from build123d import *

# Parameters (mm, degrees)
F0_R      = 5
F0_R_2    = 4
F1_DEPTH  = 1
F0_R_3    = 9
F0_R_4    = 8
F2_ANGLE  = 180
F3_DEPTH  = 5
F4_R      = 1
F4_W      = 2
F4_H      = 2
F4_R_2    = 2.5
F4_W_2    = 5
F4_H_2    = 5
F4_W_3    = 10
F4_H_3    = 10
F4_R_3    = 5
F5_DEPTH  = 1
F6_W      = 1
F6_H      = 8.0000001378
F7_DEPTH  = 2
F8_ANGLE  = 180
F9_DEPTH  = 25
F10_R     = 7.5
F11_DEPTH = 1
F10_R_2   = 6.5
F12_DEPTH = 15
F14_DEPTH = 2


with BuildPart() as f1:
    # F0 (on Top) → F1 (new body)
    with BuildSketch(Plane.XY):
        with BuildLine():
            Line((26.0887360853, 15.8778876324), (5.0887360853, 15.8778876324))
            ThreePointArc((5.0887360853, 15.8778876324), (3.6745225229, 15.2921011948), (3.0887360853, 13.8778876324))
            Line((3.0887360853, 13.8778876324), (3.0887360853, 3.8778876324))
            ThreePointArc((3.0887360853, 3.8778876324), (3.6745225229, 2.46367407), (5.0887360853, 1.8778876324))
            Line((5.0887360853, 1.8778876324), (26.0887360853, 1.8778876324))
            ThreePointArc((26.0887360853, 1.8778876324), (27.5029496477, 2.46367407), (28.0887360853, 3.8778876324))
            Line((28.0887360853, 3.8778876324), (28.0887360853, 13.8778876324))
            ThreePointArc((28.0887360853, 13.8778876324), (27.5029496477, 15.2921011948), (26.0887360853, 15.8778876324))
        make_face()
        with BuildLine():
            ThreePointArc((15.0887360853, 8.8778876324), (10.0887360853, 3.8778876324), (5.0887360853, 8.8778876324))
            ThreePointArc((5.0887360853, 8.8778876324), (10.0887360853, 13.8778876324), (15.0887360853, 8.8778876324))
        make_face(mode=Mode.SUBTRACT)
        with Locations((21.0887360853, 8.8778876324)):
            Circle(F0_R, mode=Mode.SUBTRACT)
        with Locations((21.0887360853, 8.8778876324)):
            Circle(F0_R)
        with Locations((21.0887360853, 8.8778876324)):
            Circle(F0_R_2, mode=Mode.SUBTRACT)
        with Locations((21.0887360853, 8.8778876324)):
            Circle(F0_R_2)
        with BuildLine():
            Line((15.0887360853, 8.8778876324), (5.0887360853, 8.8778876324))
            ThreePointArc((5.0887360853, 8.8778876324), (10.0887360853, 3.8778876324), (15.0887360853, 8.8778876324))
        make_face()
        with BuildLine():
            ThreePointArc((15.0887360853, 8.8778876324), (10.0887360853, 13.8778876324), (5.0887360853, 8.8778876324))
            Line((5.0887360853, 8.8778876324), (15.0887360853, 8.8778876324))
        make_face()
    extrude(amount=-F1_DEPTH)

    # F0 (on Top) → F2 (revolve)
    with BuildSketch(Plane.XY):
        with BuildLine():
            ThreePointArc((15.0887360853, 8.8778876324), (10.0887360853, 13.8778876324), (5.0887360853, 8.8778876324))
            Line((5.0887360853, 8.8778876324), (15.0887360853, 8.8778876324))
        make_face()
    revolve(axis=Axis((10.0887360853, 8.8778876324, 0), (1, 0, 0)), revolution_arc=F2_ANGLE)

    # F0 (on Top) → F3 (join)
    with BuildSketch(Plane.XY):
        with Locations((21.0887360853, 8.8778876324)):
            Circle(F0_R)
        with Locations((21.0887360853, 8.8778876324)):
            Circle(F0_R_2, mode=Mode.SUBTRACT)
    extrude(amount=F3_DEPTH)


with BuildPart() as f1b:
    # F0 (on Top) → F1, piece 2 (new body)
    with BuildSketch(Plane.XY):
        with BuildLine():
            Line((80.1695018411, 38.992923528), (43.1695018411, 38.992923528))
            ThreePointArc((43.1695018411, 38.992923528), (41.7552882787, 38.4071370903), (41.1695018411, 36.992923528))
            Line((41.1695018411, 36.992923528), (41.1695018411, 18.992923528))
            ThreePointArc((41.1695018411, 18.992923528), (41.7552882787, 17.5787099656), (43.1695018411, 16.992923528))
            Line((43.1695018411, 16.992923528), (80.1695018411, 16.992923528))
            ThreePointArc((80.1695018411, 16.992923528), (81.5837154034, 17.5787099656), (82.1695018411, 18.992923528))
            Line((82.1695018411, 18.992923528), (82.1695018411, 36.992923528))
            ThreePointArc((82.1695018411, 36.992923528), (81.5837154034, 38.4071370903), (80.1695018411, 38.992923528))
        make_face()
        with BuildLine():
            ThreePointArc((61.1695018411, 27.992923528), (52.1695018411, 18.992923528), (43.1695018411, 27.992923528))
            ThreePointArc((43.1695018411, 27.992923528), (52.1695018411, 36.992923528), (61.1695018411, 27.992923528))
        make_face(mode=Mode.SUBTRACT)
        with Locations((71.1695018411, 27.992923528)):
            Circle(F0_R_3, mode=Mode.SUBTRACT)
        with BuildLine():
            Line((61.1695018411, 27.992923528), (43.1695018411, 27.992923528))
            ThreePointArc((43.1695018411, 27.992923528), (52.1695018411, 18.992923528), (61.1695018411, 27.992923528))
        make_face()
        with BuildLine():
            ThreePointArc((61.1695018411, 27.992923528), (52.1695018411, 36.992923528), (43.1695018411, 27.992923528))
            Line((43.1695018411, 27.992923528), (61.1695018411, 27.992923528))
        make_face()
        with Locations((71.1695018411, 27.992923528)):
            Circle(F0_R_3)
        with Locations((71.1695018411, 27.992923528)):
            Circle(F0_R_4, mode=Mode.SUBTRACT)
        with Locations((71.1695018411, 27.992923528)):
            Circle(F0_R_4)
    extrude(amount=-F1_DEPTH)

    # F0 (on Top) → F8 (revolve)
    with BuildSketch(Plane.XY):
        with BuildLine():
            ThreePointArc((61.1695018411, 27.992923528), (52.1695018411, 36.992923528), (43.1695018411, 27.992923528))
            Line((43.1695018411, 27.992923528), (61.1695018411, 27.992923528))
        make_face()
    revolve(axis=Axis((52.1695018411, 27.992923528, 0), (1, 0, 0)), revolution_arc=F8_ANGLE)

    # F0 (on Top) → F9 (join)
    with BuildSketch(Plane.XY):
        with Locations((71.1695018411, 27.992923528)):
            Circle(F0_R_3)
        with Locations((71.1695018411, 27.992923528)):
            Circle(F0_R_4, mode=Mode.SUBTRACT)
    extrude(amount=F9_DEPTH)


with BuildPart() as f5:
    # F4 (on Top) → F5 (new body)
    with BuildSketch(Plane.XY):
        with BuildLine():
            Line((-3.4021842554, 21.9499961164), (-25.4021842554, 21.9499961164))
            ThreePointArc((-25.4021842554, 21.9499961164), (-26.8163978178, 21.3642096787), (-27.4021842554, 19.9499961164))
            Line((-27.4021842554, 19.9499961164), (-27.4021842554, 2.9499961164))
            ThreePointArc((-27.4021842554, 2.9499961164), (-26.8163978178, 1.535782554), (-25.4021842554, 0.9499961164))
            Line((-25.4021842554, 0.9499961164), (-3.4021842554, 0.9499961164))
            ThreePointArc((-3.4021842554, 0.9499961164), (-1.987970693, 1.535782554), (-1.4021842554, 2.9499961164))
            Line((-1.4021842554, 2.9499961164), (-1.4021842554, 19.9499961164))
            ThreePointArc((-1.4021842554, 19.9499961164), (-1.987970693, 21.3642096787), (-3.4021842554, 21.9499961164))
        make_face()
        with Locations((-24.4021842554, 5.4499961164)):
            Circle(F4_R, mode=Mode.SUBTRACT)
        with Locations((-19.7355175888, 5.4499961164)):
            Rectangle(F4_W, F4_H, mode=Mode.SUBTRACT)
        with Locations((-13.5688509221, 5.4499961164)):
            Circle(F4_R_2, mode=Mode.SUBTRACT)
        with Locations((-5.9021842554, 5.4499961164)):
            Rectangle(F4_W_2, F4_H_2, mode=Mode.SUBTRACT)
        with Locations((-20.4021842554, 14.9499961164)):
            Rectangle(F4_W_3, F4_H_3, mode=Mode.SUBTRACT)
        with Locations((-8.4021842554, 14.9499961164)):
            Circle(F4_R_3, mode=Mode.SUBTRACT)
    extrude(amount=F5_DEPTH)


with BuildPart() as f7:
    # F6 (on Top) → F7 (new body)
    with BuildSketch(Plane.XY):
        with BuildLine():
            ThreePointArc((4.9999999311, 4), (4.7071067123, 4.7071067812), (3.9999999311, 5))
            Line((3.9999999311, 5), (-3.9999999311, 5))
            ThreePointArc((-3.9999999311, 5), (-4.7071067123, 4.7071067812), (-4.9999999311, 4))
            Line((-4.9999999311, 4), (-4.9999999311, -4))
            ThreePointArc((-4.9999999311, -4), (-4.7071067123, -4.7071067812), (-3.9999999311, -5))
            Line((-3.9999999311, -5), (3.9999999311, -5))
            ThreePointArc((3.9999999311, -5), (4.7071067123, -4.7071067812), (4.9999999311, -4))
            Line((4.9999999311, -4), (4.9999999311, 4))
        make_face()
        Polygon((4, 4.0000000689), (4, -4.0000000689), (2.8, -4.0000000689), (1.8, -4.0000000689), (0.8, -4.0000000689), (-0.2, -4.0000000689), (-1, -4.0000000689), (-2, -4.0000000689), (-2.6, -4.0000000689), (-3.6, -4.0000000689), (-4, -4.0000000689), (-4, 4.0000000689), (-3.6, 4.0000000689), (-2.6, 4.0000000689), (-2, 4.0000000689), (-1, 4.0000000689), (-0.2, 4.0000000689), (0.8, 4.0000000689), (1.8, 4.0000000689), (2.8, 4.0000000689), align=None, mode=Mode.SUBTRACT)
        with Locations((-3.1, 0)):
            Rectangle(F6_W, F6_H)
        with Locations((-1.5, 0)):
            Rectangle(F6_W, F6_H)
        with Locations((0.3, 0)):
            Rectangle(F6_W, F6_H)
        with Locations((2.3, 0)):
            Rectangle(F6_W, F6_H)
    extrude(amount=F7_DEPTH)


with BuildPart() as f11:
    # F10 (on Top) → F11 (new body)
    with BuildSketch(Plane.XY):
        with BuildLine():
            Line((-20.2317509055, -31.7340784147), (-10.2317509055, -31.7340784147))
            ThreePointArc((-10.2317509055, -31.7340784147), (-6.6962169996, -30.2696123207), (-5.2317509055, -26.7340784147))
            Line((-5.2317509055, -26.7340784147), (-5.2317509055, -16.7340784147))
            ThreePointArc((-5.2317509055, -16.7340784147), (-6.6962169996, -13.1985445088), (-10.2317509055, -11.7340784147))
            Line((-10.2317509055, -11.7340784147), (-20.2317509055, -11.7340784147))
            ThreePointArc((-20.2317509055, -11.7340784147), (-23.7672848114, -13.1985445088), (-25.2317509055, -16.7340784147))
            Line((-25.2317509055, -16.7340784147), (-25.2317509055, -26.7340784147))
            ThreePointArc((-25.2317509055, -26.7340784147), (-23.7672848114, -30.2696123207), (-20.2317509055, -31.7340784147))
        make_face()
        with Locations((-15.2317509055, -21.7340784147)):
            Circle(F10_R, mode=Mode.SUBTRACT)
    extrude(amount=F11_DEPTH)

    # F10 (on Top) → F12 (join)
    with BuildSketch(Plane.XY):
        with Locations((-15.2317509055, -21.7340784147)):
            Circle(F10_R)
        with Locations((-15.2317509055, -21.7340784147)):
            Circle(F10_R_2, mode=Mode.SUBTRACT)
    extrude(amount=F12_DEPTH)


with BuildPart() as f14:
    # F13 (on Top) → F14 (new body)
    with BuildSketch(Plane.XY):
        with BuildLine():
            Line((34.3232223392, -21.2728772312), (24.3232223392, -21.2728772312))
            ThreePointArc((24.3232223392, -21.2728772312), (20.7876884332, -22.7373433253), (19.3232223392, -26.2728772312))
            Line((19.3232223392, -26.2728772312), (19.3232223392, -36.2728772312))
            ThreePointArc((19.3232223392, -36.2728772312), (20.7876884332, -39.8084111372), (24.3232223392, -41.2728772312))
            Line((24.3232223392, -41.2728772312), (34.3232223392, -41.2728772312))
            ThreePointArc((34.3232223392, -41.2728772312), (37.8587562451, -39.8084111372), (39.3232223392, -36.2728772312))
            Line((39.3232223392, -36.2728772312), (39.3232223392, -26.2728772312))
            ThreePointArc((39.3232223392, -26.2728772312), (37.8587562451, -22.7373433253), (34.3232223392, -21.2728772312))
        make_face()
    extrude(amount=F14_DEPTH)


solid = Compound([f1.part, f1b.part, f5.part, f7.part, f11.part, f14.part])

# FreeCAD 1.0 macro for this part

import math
import FreeCAD as App
import Part
import Sketcher

doc = App.newDocument("Part")
body = doc.addObject("PartDesign::Body", "Body")

# Sketch on XY plane
sketch1 = body.newObject("Sketcher::SketchObject", "Sketch")
sketch1.AttachmentSupport = (doc.getObject("XY_Plane"), [""])
sketch1.MapMode = "FlatFace"
sketch1.addGeometry(Part.LineSegment(App.Vector(26.1, 15.9, 0), App.Vector(5.1, 15.9, 0)), False)
sketch1.addGeometry(Part.ArcOfCircle(Part.Circle(App.Vector(5.1, 13.9, 0), App.Vector(0, 0, 1), 2), math.radians(90), math.radians(180)), False)
sketch1.addGeometry(Part.LineSegment(App.Vector(3.1, 13.9, 0), App.Vector(3.1, 3.9, 0)), False)
sketch1.addGeometry(Part.ArcOfCircle(Part.Circle(App.Vector(5.1, 3.9, 0), App.Vector(0, 0, 1), 2), math.radians(180), math.radians(270)), False)
sketch1.addGeometry(Part.LineSegment(App.Vector(5.1, 1.9, 0), App.Vector(26.1, 1.9, 0)), False)
sketch1.addGeometry(Part.ArcOfCircle(Part.Circle(App.Vector(26.1, 3.9, 0), App.Vector(0, 0, 1), 2), math.radians(-90), math.radians(0)), False)
sketch1.addGeometry(Part.LineSegment(App.Vector(28.1, 3.9, 0), App.Vector(28.1, 13.9, 0)), False)
sketch1.addGeometry(Part.ArcOfCircle(Part.Circle(App.Vector(26.1, 13.9, 0), App.Vector(0, 0, 1), 2), math.radians(0), math.radians(90)), False)
sketch1.addConstraint(Sketcher.Constraint("Tangent", 0, 2, 1, 1))
sketch1.addConstraint(Sketcher.Constraint("Tangent", 1, 2, 2, 1))
sketch1.addConstraint(Sketcher.Constraint("Tangent", 2, 2, 3, 1))
sketch1.addConstraint(Sketcher.Constraint("Tangent", 3, 2, 4, 1))
sketch1.addConstraint(Sketcher.Constraint("Tangent", 4, 2, 5, 1))
sketch1.addConstraint(Sketcher.Constraint("Tangent", 5, 2, 6, 1))
sketch1.addConstraint(Sketcher.Constraint("Tangent", 6, 2, 7, 1))
sketch1.addConstraint(Sketcher.Constraint("Tangent", 7, 2, 0, 1))
sketch1.addConstraint(Sketcher.Constraint("Horizontal", 0))
sketch1.addConstraint(Sketcher.Constraint("Vertical", 2))
sketch1.addConstraint(Sketcher.Constraint("Horizontal", 4))
sketch1.addConstraint(Sketcher.Constraint("Vertical", 6))
sketch1.addConstraint(Sketcher.Constraint("Equal", 1, 3))
sketch1.addConstraint(Sketcher.Constraint("Equal", 3, 5))
sketch1.addConstraint(Sketcher.Constraint("Equal", 5, 7))
sketch1.addConstraint(Sketcher.Constraint("Radius", 1, 2.0))
sketch1.addConstraint(Sketcher.Constraint("DistanceX", 0, 2, 0, 1, 21.0))
sketch1.addConstraint(Sketcher.Constraint("DistanceY", 2, 2, 2, 1, 10.0))
sketch1.addConstraint(Sketcher.Constraint("DistanceX", -1, 1, 1, 3, 5.088736))
sketch1.addConstraint(Sketcher.Constraint("DistanceY", -1, 1, 1, 3, 13.877888))
pad1 = body.newObject("PartDesign::Pad", "Pad")
pad1.Profile = sketch1
pad1.Length = 1
pad1.Reversed = True

# Sketch on XY plane
sketch2 = body.newObject("Sketcher::SketchObject", "Sketch001")
sketch2.AttachmentSupport = (doc.getObject("XY_Plane"), [""])
sketch2.MapMode = "FlatFace"
sketch2.addGeometry(Part.ArcOfCircle(Part.Circle(App.Vector(10, 9, 0), App.Vector(0, 0, 1), 5), math.radians(0), math.radians(180)), False)
sketch2.addGeometry(Part.LineSegment(App.Vector(5, 9, 0), App.Vector(15, 9, 0)), False)
sketch2.addGeometry(Part.LineSegment(App.Vector(5, 9, 0), App.Vector(15, 9, 0)), True)  # axis
sketch2.addConstraint(Sketcher.Constraint("Coincident", 0, 1, 1, 2))
sketch2.addConstraint(Sketcher.Constraint("Coincident", 1, 1, 0, 2))
sketch2.addConstraint(Sketcher.Constraint("Horizontal", 1))
sketch2.addConstraint(Sketcher.Constraint("Horizontal", 2))
sketch2.addConstraint(Sketcher.Constraint("Coincident", 2, 1, 1, 1))
sketch2.addConstraint(Sketcher.Constraint("Equal", 1, 2))
sketch2.addConstraint(Sketcher.Constraint("Radius", 0, 5.0))
sketch2.addConstraint(Sketcher.Constraint("DistanceX", -1, 1, 0, 3, 10.088736))
sketch2.addConstraint(Sketcher.Constraint("DistanceY", -1, 1, 0, 3, 8.877888))
sketch2.addConstraint(Sketcher.Constraint("DistanceY", -1, 1, 0, 1, 8.877888))
revolution = body.newObject("PartDesign::Revolution", "Revolution")
revolution.Profile = sketch2
revolution.ReferenceAxis = (sketch2, ["Axis0"])
revolution.Angle = 180

# Sketch on XY plane
sketch3 = body.newObject("Sketcher::SketchObject", "Sketch002")
sketch3.AttachmentSupport = (doc.getObject("XY_Plane"), [""])
sketch3.MapMode = "FlatFace"
sketch3.addGeometry(Part.Circle(App.Vector(21.1, 8.9, 0), App.Vector(0, 0, 1), 5), False)
sketch3.addGeometry(Part.Circle(App.Vector(21.1, 8.9, 0), App.Vector(0, 0, 1), 4), False)
sketch3.addConstraint(Sketcher.Constraint("Coincident", 1, 3, 0, 3))
sketch3.addConstraint(Sketcher.Constraint("Diameter", 0, 10.0))
sketch3.addConstraint(Sketcher.Constraint("Diameter", 1, 8.0))
sketch3.addConstraint(Sketcher.Constraint("DistanceX", -1, 1, 0, 3, 21.088736))
sketch3.addConstraint(Sketcher.Constraint("DistanceY", -1, 1, 0, 3, 8.877888))
pad2 = body.newObject("PartDesign::Pad", "Pad001")
pad2.Profile = sketch3
pad2.Length = 5
body2 = doc.addObject("PartDesign::Body", "Body001")

# Sketch on XY plane
sketch4 = body2.newObject("Sketcher::SketchObject", "Sketch003")
sketch4.AttachmentSupport = (doc.getObject("XY_Plane001"), [""])
sketch4.MapMode = "FlatFace"
sketch4.addGeometry(Part.LineSegment(App.Vector(80.2, 39, 0), App.Vector(43.2, 39, 0)), False)
sketch4.addGeometry(Part.ArcOfCircle(Part.Circle(App.Vector(43.2, 37, 0), App.Vector(0, 0, 1), 2), math.radians(90), math.radians(180)), False)
sketch4.addGeometry(Part.LineSegment(App.Vector(41.2, 37, 0), App.Vector(41.2, 19, 0)), False)
sketch4.addGeometry(Part.ArcOfCircle(Part.Circle(App.Vector(43.2, 19, 0), App.Vector(0, 0, 1), 2), math.radians(180), math.radians(270)), False)
sketch4.addGeometry(Part.LineSegment(App.Vector(43.2, 17, 0), App.Vector(80.2, 17, 0)), False)
sketch4.addGeometry(Part.ArcOfCircle(Part.Circle(App.Vector(80.2, 19, 0), App.Vector(0, 0, 1), 2), math.radians(-90), math.radians(0)), False)
sketch4.addGeometry(Part.LineSegment(App.Vector(82.2, 19, 0), App.Vector(82.2, 37, 0)), False)
sketch4.addGeometry(Part.ArcOfCircle(Part.Circle(App.Vector(80.2, 37, 0), App.Vector(0, 0, 1), 2), math.radians(0), math.radians(90)), False)
sketch4.addConstraint(Sketcher.Constraint("Tangent", 0, 2, 1, 1))
sketch4.addConstraint(Sketcher.Constraint("Tangent", 1, 2, 2, 1))
sketch4.addConstraint(Sketcher.Constraint("Tangent", 2, 2, 3, 1))
sketch4.addConstraint(Sketcher.Constraint("Tangent", 3, 2, 4, 1))
sketch4.addConstraint(Sketcher.Constraint("Tangent", 4, 2, 5, 1))
sketch4.addConstraint(Sketcher.Constraint("Tangent", 5, 2, 6, 1))
sketch4.addConstraint(Sketcher.Constraint("Tangent", 6, 2, 7, 1))
sketch4.addConstraint(Sketcher.Constraint("Tangent", 7, 2, 0, 1))
sketch4.addConstraint(Sketcher.Constraint("Horizontal", 0))
sketch4.addConstraint(Sketcher.Constraint("Vertical", 2))
sketch4.addConstraint(Sketcher.Constraint("Horizontal", 4))
sketch4.addConstraint(Sketcher.Constraint("Vertical", 6))
sketch4.addConstraint(Sketcher.Constraint("Equal", 1, 3))
sketch4.addConstraint(Sketcher.Constraint("Equal", 3, 5))
sketch4.addConstraint(Sketcher.Constraint("Equal", 5, 7))
sketch4.addConstraint(Sketcher.Constraint("Radius", 1, 2.0))
sketch4.addConstraint(Sketcher.Constraint("DistanceX", 0, 2, 0, 1, 37.0))
sketch4.addConstraint(Sketcher.Constraint("DistanceY", 2, 2, 2, 1, 18.0))
sketch4.addConstraint(Sketcher.Constraint("DistanceX", -1, 1, 1, 3, 43.169502))
sketch4.addConstraint(Sketcher.Constraint("DistanceY", -1, 1, 1, 3, 36.992924))
pad3 = body2.newObject("PartDesign::Pad", "Pad002")
pad3.Profile = sketch4
pad3.Length = 1
pad3.Reversed = True

# Sketch on XY plane
sketch5 = body2.newObject("Sketcher::SketchObject", "Sketch004")
sketch5.AttachmentSupport = (doc.getObject("XY_Plane001"), [""])
sketch5.MapMode = "FlatFace"
sketch5.addGeometry(Part.ArcOfCircle(Part.Circle(App.Vector(52, 28, 0), App.Vector(0, 0, 1), 9), math.radians(0), math.radians(180)), False)
sketch5.addGeometry(Part.LineSegment(App.Vector(43, 28, 0), App.Vector(61, 28, 0)), False)
sketch5.addGeometry(Part.LineSegment(App.Vector(43, 28, 0), App.Vector(61, 28, 0)), True)  # axis
sketch5.addConstraint(Sketcher.Constraint("Coincident", 0, 1, 1, 2))
sketch5.addConstraint(Sketcher.Constraint("Coincident", 1, 1, 0, 2))
sketch5.addConstraint(Sketcher.Constraint("Horizontal", 1))
sketch5.addConstraint(Sketcher.Constraint("Horizontal", 2))
sketch5.addConstraint(Sketcher.Constraint("Coincident", 2, 1, 1, 1))
sketch5.addConstraint(Sketcher.Constraint("Equal", 1, 2))
sketch5.addConstraint(Sketcher.Constraint("Radius", 0, 9.0))
sketch5.addConstraint(Sketcher.Constraint("DistanceX", -1, 1, 0, 3, 52.169502))
sketch5.addConstraint(Sketcher.Constraint("DistanceY", -1, 1, 0, 3, 27.992924))
sketch5.addConstraint(Sketcher.Constraint("DistanceY", -1, 1, 0, 1, 27.992924))
revolution2 = body2.newObject("PartDesign::Revolution", "Revolution001")
revolution2.Profile = sketch5
revolution2.ReferenceAxis = (sketch5, ["Axis0"])
revolution2.Angle = 180

# Sketch on XY plane
sketch6 = body2.newObject("Sketcher::SketchObject", "Sketch005")
sketch6.AttachmentSupport = (doc.getObject("XY_Plane001"), [""])
sketch6.MapMode = "FlatFace"
sketch6.addGeometry(Part.Circle(App.Vector(71, 28, 0), App.Vector(0, 0, 1), 9), False)
sketch6.addGeometry(Part.Circle(App.Vector(71, 28, 0), App.Vector(0, 0, 1), 8), False)
sketch6.addConstraint(Sketcher.Constraint("Coincident", 1, 3, 0, 3))
sketch6.addConstraint(Sketcher.Constraint("Diameter", 0, 18.0))
sketch6.addConstraint(Sketcher.Constraint("Diameter", 1, 16.0))
sketch6.addConstraint(Sketcher.Constraint("DistanceX", -1, 1, 0, 3, 71.169502))
sketch6.addConstraint(Sketcher.Constraint("DistanceY", -1, 1, 0, 3, 27.992924))
pad4 = body2.newObject("PartDesign::Pad", "Pad003")
pad4.Profile = sketch6
pad4.Length = 25
body3 = doc.addObject("PartDesign::Body", "Body002")

# Sketch on XY plane
sketch7 = body3.newObject("Sketcher::SketchObject", "Sketch006")
sketch7.AttachmentSupport = (doc.getObject("XY_Plane002"), [""])
sketch7.MapMode = "FlatFace"
sketch7.addGeometry(Part.LineSegment(App.Vector(-3.4, 21.9, 0), App.Vector(-25.4, 21.9, 0)), False)
sketch7.addGeometry(Part.ArcOfCircle(Part.Circle(App.Vector(-25.4, 19.9, 0), App.Vector(0, 0, 1), 2), math.radians(90), math.radians(180)), False)
sketch7.addGeometry(Part.LineSegment(App.Vector(-27.4, 19.9, 0), App.Vector(-27.4, 2.9, 0)), False)
sketch7.addGeometry(Part.ArcOfCircle(Part.Circle(App.Vector(-25.4, 2.9, 0), App.Vector(0, 0, 1), 2), math.radians(180), math.radians(270)), False)
sketch7.addGeometry(Part.LineSegment(App.Vector(-25.4, 0.9, 0), App.Vector(-3.4, 0.9, 0)), False)
sketch7.addGeometry(Part.ArcOfCircle(Part.Circle(App.Vector(-3.4, 2.9, 0), App.Vector(0, 0, 1), 2), math.radians(-90), math.radians(0)), False)
sketch7.addGeometry(Part.LineSegment(App.Vector(-1.4, 2.9, 0), App.Vector(-1.4, 19.9, 0)), False)
sketch7.addGeometry(Part.ArcOfCircle(Part.Circle(App.Vector(-3.4, 19.9, 0), App.Vector(0, 0, 1), 2), math.radians(0), math.radians(90)), False)
sketch7.addGeometry(Part.Circle(App.Vector(-24.4, 5.4, 0), App.Vector(0, 0, 1), 1), False)
sketch7.addGeometry(Part.LineSegment(App.Vector(-18.7, 4.4, 0), App.Vector(-20.7, 4.4, 0)), False)
sketch7.addGeometry(Part.LineSegment(App.Vector(-20.7, 4.4, 0), App.Vector(-20.7, 6.4, 0)), False)
sketch7.addGeometry(Part.LineSegment(App.Vector(-20.7, 6.4, 0), App.Vector(-18.7, 6.4, 0)), False)
sketch7.addGeometry(Part.LineSegment(App.Vector(-18.7, 6.4, 0), App.Vector(-18.7, 4.4, 0)), False)
sketch7.addGeometry(Part.Circle(App.Vector(-13.6, 5.4, 0), App.Vector(0, 0, 1), 2.5), False)
sketch7.addGeometry(Part.LineSegment(App.Vector(-3.4, 2.9, 0), App.Vector(-8.4, 2.9, 0)), False)
sketch7.addGeometry(Part.LineSegment(App.Vector(-8.4, 2.9, 0), App.Vector(-8.4, 7.9, 0)), False)
sketch7.addGeometry(Part.LineSegment(App.Vector(-8.4, 7.9, 0), App.Vector(-3.4, 7.9, 0)), False)
sketch7.addGeometry(Part.LineSegment(App.Vector(-3.4, 7.9, 0), App.Vector(-3.4, 2.9, 0)), False)
sketch7.addGeometry(Part.LineSegment(App.Vector(-15.4, 9.9, 0), App.Vector(-25.4, 9.9, 0)), False)
sketch7.addGeometry(Part.LineSegment(App.Vector(-25.4, 9.9, 0), App.Vector(-25.4, 19.9, 0)), False)
sketch7.addGeometry(Part.LineSegment(App.Vector(-25.4, 19.9, 0), App.Vector(-15.4, 19.9, 0)), False)
sketch7.addGeometry(Part.LineSegment(App.Vector(-15.4, 19.9, 0), App.Vector(-15.4, 9.9, 0)), False)
sketch7.addGeometry(Part.Circle(App.Vector(-8.4, 14.9, 0), App.Vector(0, 0, 1), 5), False)
sketch7.addConstraint(Sketcher.Constraint("Tangent", 0, 2, 1, 1))
sketch7.addConstraint(Sketcher.Constraint("Tangent", 1, 2, 2, 1))
sketch7.addConstraint(Sketcher.Constraint("Tangent", 2, 2, 3, 1))
sketch7.addConstraint(Sketcher.Constraint("Tangent", 3, 2, 4, 1))
sketch7.addConstraint(Sketcher.Constraint("Tangent", 4, 2, 5, 1))
sketch7.addConstraint(Sketcher.Constraint("Tangent", 5, 2, 6, 1))
sketch7.addConstraint(Sketcher.Constraint("Tangent", 6, 2, 7, 1))
sketch7.addConstraint(Sketcher.Constraint("Tangent", 7, 2, 0, 1))
sketch7.addConstraint(Sketcher.Constraint("Coincident", 9, 2, 10, 1))
sketch7.addConstraint(Sketcher.Constraint("Coincident", 10, 2, 11, 1))
sketch7.addConstraint(Sketcher.Constraint("Coincident", 11, 2, 12, 1))
sketch7.addConstraint(Sketcher.Constraint("Coincident", 12, 2, 9, 1))
sketch7.addConstraint(Sketcher.Constraint("Coincident", 14, 2, 15, 1))
sketch7.addConstraint(Sketcher.Constraint("Coincident", 15, 2, 16, 1))
sketch7.addConstraint(Sketcher.Constraint("Coincident", 16, 2, 17, 1))
sketch7.addConstraint(Sketcher.Constraint("Coincident", 17, 2, 14, 1))
sketch7.addConstraint(Sketcher.Constraint("Coincident", 18, 2, 19, 1))
sketch7.addConstraint(Sketcher.Constraint("Coincident", 19, 2, 20, 1))
sketch7.addConstraint(Sketcher.Constraint("Coincident", 20, 2, 21, 1))
sketch7.addConstraint(Sketcher.Constraint("Coincident", 21, 2, 18, 1))
sketch7.addConstraint(Sketcher.Constraint("Horizontal", 0))
sketch7.addConstraint(Sketcher.Constraint("Vertical", 2))
sketch7.addConstraint(Sketcher.Constraint("Horizontal", 4))
sketch7.addConstraint(Sketcher.Constraint("Vertical", 6))
sketch7.addConstraint(Sketcher.Constraint("Horizontal", 9))
sketch7.addConstraint(Sketcher.Constraint("Vertical", 10))
sketch7.addConstraint(Sketcher.Constraint("Horizontal", 11))
sketch7.addConstraint(Sketcher.Constraint("Vertical", 12))
sketch7.addConstraint(Sketcher.Constraint("Horizontal", 14))
sketch7.addConstraint(Sketcher.Constraint("Vertical", 15))
sketch7.addConstraint(Sketcher.Constraint("Horizontal", 16))
sketch7.addConstraint(Sketcher.Constraint("Vertical", 17))
sketch7.addConstraint(Sketcher.Constraint("Horizontal", 18))
sketch7.addConstraint(Sketcher.Constraint("Vertical", 19))
sketch7.addConstraint(Sketcher.Constraint("Horizontal", 20))
sketch7.addConstraint(Sketcher.Constraint("Vertical", 21))
sketch7.addConstraint(Sketcher.Constraint("Coincident", 17, 2, 5, 3))
sketch7.addConstraint(Sketcher.Constraint("Coincident", 19, 2, 1, 3))
sketch7.addConstraint(Sketcher.Constraint("Equal", 1, 3))
sketch7.addConstraint(Sketcher.Constraint("Equal", 3, 5))
sketch7.addConstraint(Sketcher.Constraint("Equal", 5, 7))
sketch7.addConstraint(Sketcher.Constraint("Horizontal", 8, 3, 13, 3))
sketch7.addConstraint(Sketcher.Constraint("Vertical", 22, 3, 14, 2))
sketch7.addConstraint(Sketcher.Constraint("Equal", 11, 10))
sketch7.addConstraint(Sketcher.Constraint("Equal", 16, 15))
sketch7.addConstraint(Sketcher.Constraint("Equal", 20, 19))
sketch7.addConstraint(Sketcher.Constraint("Diameter", 8, 2.0))
sketch7.addConstraint(Sketcher.Constraint("Diameter", 13, 5.0))
sketch7.addConstraint(Sketcher.Constraint("Diameter", 22, 10.0))
sketch7.addConstraint(Sketcher.Constraint("Radius", 1, 2.0))
sketch7.addConstraint(Sketcher.Constraint("DistanceX", 0, 2, 0, 1, 22.0))
sketch7.addConstraint(Sketcher.Constraint("DistanceX", 9, 2, 9, 1, 2.0))
sketch7.addConstraint(Sketcher.Constraint("DistanceX", 14, 2, 14, 1, 5.0))
sketch7.addConstraint(Sketcher.Constraint("DistanceX", 18, 2, 18, 1, 10.0))
sketch7.addConstraint(Sketcher.Constraint("DistanceY", 2, 2, 2, 1, 17.0))
sketch7.addConstraint(Sketcher.Constraint("DistanceX", 3, 3, 8, 3, 1.0))
sketch7.addConstraint(Sketcher.Constraint("DistanceY", 22, 3, 7, 3, 5.0))
sketch7.addConstraint(Sketcher.Constraint("DistanceY", 9, 2, 8, 3, 1.0))
sketch7.addConstraint(Sketcher.Constraint("DistanceY", 3, 3, 8, 3, 2.5))
sketch7.addConstraint(Sketcher.Constraint("DistanceX", 13, 3, -1, 1, 13.568851))
sketch7.addConstraint(Sketcher.Constraint("DistanceX", 1, 3, -1, 1, 25.402184))
sketch7.addConstraint(Sketcher.Constraint("DistanceY", -1, 1, 1, 3, 19.949996))
sketch7.addConstraint(Sketcher.Constraint("DistanceX", 9, 2, -1, 1, 20.735518))
pad5 = body3.newObject("PartDesign::Pad", "Pad004")
pad5.Profile = sketch7
pad5.Length = 1
body4 = doc.addObject("PartDesign::Body", "Body003")

# Sketch on XY plane
sketch8 = body4.newObject("Sketcher::SketchObject", "Sketch007")
sketch8.AttachmentSupport = (doc.getObject("XY_Plane003"), [""])
sketch8.MapMode = "FlatFace"
sketch8.addGeometry(Part.ArcOfCircle(Part.Circle(App.Vector(4, 4, 0), App.Vector(0, 0, 1), 1), math.radians(0), math.radians(90)), False)
sketch8.addGeometry(Part.LineSegment(App.Vector(4, 5, 0), App.Vector(-4, 5, 0)), False)
sketch8.addGeometry(Part.ArcOfCircle(Part.Circle(App.Vector(-4, 4, 0), App.Vector(0, 0, 1), 1), math.radians(90), math.radians(180)), False)
sketch8.addGeometry(Part.LineSegment(App.Vector(-5, 4, 0), App.Vector(-5, -4, 0)), False)
sketch8.addGeometry(Part.ArcOfCircle(Part.Circle(App.Vector(-4, -4, 0), App.Vector(0, 0, 1), 1), math.radians(180), math.radians(270)), False)
sketch8.addGeometry(Part.LineSegment(App.Vector(-4, -5, 0), App.Vector(4, -5, 0)), False)
sketch8.addGeometry(Part.ArcOfCircle(Part.Circle(App.Vector(4, -4, 0), App.Vector(0, 0, 1), 1), math.radians(-90), math.radians(0)), False)
sketch8.addGeometry(Part.LineSegment(App.Vector(5, -4, 0), App.Vector(5, 4, 0)), False)
sketch8.addGeometry(Part.LineSegment(App.Vector(-4, 4, 0), App.Vector(-3.6, 4, 0)), False)
sketch8.addGeometry(Part.LineSegment(App.Vector(-3.6, 4, 0), App.Vector(-3.6, -4, 0)), False)
sketch8.addGeometry(Part.LineSegment(App.Vector(-3.6, -4, 0), App.Vector(-4, -4, 0)), False)
sketch8.addGeometry(Part.LineSegment(App.Vector(-4, -4, 0), App.Vector(-4, 4, 0)), False)
sketch8.addGeometry(Part.LineSegment(App.Vector(-2.6, 4, 0), App.Vector(-2, 4, 0)), False)
sketch8.addGeometry(Part.LineSegment(App.Vector(-2, 4, 0), App.Vector(-2, -4, 0)), False)
sketch8.addGeometry(Part.LineSegment(App.Vector(-2, -4, 0), App.Vector(-2.6, -4, 0)), False)
sketch8.addGeometry(Part.LineSegment(App.Vector(-2.6, -4, 0), App.Vector(-2.6, 4, 0)), False)
sketch8.addGeometry(Part.LineSegment(App.Vector(-1, 4, 0), App.Vector(-0.2, 4, 0)), False)
sketch8.addGeometry(Part.LineSegment(App.Vector(-0.2, 4, 0), App.Vector(-0.2, -4, 0)), False)
sketch8.addGeometry(Part.LineSegment(App.Vector(-0.2, -4, 0), App.Vector(-1, -4, 0)), False)
sketch8.addGeometry(Part.LineSegment(App.Vector(-1, -4, 0), App.Vector(-1, 4, 0)), False)
sketch8.addGeometry(Part.LineSegment(App.Vector(0.8, 4, 0), App.Vector(1.8, 4, 0)), False)
sketch8.addGeometry(Part.LineSegment(App.Vector(1.8, 4, 0), App.Vector(1.8, -4, 0)), False)
sketch8.addGeometry(Part.LineSegment(App.Vector(1.8, -4, 0), App.Vector(0.8, -4, 0)), False)
sketch8.addGeometry(Part.LineSegment(App.Vector(0.8, -4, 0), App.Vector(0.8, 4, 0)), False)
sketch8.addGeometry(Part.LineSegment(App.Vector(2.8, 4, 0), App.Vector(4, 4, 0)), False)
sketch8.addGeometry(Part.LineSegment(App.Vector(4, 4, 0), App.Vector(4, -4, 0)), False)
sketch8.addGeometry(Part.LineSegment(App.Vector(4, -4, 0), App.Vector(2.8, -4, 0)), False)
sketch8.addGeometry(Part.LineSegment(App.Vector(2.8, -4, 0), App.Vector(2.8, 4, 0)), False)
sketch8.addConstraint(Sketcher.Constraint("Tangent", 0, 2, 1, 1))
sketch8.addConstraint(Sketcher.Constraint("Tangent", 1, 2, 2, 1))
sketch8.addConstraint(Sketcher.Constraint("Tangent", 2, 2, 3, 1))
sketch8.addConstraint(Sketcher.Constraint("Tangent", 3, 2, 4, 1))
sketch8.addConstraint(Sketcher.Constraint("Tangent", 4, 2, 5, 1))
sketch8.addConstraint(Sketcher.Constraint("Tangent", 5, 2, 6, 1))
sketch8.addConstraint(Sketcher.Constraint("Tangent", 6, 2, 7, 1))
sketch8.addConstraint(Sketcher.Constraint("Tangent", 7, 2, 0, 1))
sketch8.addConstraint(Sketcher.Constraint("Coincident", 8, 2, 9, 1))
sketch8.addConstraint(Sketcher.Constraint("Coincident", 9, 2, 10, 1))
sketch8.addConstraint(Sketcher.Constraint("Coincident", 10, 2, 11, 1))
sketch8.addConstraint(Sketcher.Constraint("Coincident", 11, 2, 8, 1))
sketch8.addConstraint(Sketcher.Constraint("Coincident", 12, 2, 13, 1))
sketch8.addConstraint(Sketcher.Constraint("Coincident", 13, 2, 14, 1))
sketch8.addConstraint(Sketcher.Constraint("Coincident", 14, 2, 15, 1))
sketch8.addConstraint(Sketcher.Constraint("Coincident", 15, 2, 12, 1))
sketch8.addConstraint(Sketcher.Constraint("Coincident", 16, 2, 17, 1))
sketch8.addConstraint(Sketcher.Constraint("Coincident", 17, 2, 18, 1))
sketch8.addConstraint(Sketcher.Constraint("Coincident", 18, 2, 19, 1))
sketch8.addConstraint(Sketcher.Constraint("Coincident", 19, 2, 16, 1))
sketch8.addConstraint(Sketcher.Constraint("Coincident", 20, 2, 21, 1))
sketch8.addConstraint(Sketcher.Constraint("Coincident", 21, 2, 22, 1))
sketch8.addConstraint(Sketcher.Constraint("Coincident", 22, 2, 23, 1))
sketch8.addConstraint(Sketcher.Constraint("Coincident", 23, 2, 20, 1))
sketch8.addConstraint(Sketcher.Constraint("Coincident", 24, 2, 25, 1))
sketch8.addConstraint(Sketcher.Constraint("Coincident", 25, 2, 26, 1))
sketch8.addConstraint(Sketcher.Constraint("Coincident", 26, 2, 27, 1))
sketch8.addConstraint(Sketcher.Constraint("Coincident", 27, 2, 24, 1))
sketch8.addConstraint(Sketcher.Constraint("Horizontal", 1))
sketch8.addConstraint(Sketcher.Constraint("Vertical", 3))
sketch8.addConstraint(Sketcher.Constraint("Horizontal", 5))
sketch8.addConstraint(Sketcher.Constraint("Vertical", 7))
sketch8.addConstraint(Sketcher.Constraint("Horizontal", 8))
sketch8.addConstraint(Sketcher.Constraint("Vertical", 9))
sketch8.addConstraint(Sketcher.Constraint("Horizontal", 10))
sketch8.addConstraint(Sketcher.Constraint("Vertical", 11))
sketch8.addConstraint(Sketcher.Constraint("Horizontal", 12))
sketch8.addConstraint(Sketcher.Constraint("Vertical", 13))
sketch8.addConstraint(Sketcher.Constraint("Horizontal", 14))
sketch8.addConstraint(Sketcher.Constraint("Vertical", 15))
sketch8.addConstraint(Sketcher.Constraint("Horizontal", 16))
sketch8.addConstraint(Sketcher.Constraint("Vertical", 17))
sketch8.addConstraint(Sketcher.Constraint("Horizontal", 18))
sketch8.addConstraint(Sketcher.Constraint("Vertical", 19))
sketch8.addConstraint(Sketcher.Constraint("Horizontal", 20))
sketch8.addConstraint(Sketcher.Constraint("Vertical", 21))
sketch8.addConstraint(Sketcher.Constraint("Horizontal", 22))
sketch8.addConstraint(Sketcher.Constraint("Vertical", 23))
sketch8.addConstraint(Sketcher.Constraint("Horizontal", 24))
sketch8.addConstraint(Sketcher.Constraint("Vertical", 25))
sketch8.addConstraint(Sketcher.Constraint("Horizontal", 26))
sketch8.addConstraint(Sketcher.Constraint("Vertical", 27))
sketch8.addConstraint(Sketcher.Constraint("Coincident", 10, 2, 4, 3))
sketch8.addConstraint(Sketcher.Constraint("Coincident", 11, 2, 2, 3))
sketch8.addConstraint(Sketcher.Constraint("Coincident", 24, 2, 0, 3))
sketch8.addConstraint(Sketcher.Constraint("Coincident", 25, 2, 6, 3))
sketch8.addConstraint(Sketcher.Constraint("Equal", 0, 2))
sketch8.addConstraint(Sketcher.Constraint("Symmetric", 0, 3, 4, 3, -1, 1))
sketch8.addConstraint(Sketcher.Constraint("Horizontal", 11, 2, 12, 2))
sketch8.addConstraint(Sketcher.Constraint("Horizontal", 10, 2, 13, 2))
sketch8.addConstraint(Sketcher.Constraint("Horizontal", 15, 2, 16, 2))
sketch8.addConstraint(Sketcher.Constraint("Horizontal", 14, 2, 17, 2))
sketch8.addConstraint(Sketcher.Constraint("Horizontal", 19, 2, 20, 2))
sketch8.addConstraint(Sketcher.Constraint("Horizontal", 18, 2, 21, 2))
sketch8.addConstraint(Sketcher.Constraint("Equal", 5, 3))
sketch8.addConstraint(Sketcher.Constraint("Radius", 0, 1.0))
sketch8.addConstraint(Sketcher.Constraint("DistanceX", 1, 2, 1, 1, 8.0))
sketch8.addConstraint(Sketcher.Constraint("DistanceX", 20, 1, 20, 2, 1.0))
sketch8.addConstraint(Sketcher.Constraint("DistanceX", 8, 1, 8, 2, 0.4))
sketch8.addConstraint(Sketcher.Constraint("DistanceX", 12, 1, 12, 2, 0.6))
sketch8.addConstraint(Sketcher.Constraint("DistanceX", 16, 1, 16, 2, 0.8))
sketch8.addConstraint(Sketcher.Constraint("DistanceX", 24, 1, 24, 2, 1.2))
sketch8.addConstraint(Sketcher.Constraint("DistanceX", 12, 2, -1, 1, 2.0))
sketch8.addConstraint(Sketcher.Constraint("DistanceX", 18, 2, -1, 1, 1.0))
sketch8.addConstraint(Sketcher.Constraint("DistanceX", 16, 2, 20, 2, 2.0))
pad6 = body4.newObject("PartDesign::Pad", "Pad005")
pad6.Profile = sketch8
pad6.Length = 2
body5 = doc.addObject("PartDesign::Body", "Body004")

# Sketch on XY plane
sketch9 = body5.newObject("Sketcher::SketchObject", "Sketch008")
sketch9.AttachmentSupport = (doc.getObject("XY_Plane004"), [""])
sketch9.MapMode = "FlatFace"
sketch9.addGeometry(Part.LineSegment(App.Vector(-20, -32, 0), App.Vector(-10, -32, 0)), False)
sketch9.addGeometry(Part.ArcOfCircle(Part.Circle(App.Vector(-10, -27, 0), App.Vector(0, 0, 1), 5), math.radians(-90), math.radians(0)), False)
sketch9.addGeometry(Part.LineSegment(App.Vector(-5, -27, 0), App.Vector(-5, -17, 0)), False)
sketch9.addGeometry(Part.ArcOfCircle(Part.Circle(App.Vector(-10, -17, 0), App.Vector(0, 0, 1), 5), math.radians(0), math.radians(90)), False)
sketch9.addGeometry(Part.LineSegment(App.Vector(-10, -12, 0), App.Vector(-20, -12, 0)), False)
sketch9.addGeometry(Part.ArcOfCircle(Part.Circle(App.Vector(-20, -17, 0), App.Vector(0, 0, 1), 5), math.radians(90), math.radians(180)), False)
sketch9.addGeometry(Part.LineSegment(App.Vector(-25, -17, 0), App.Vector(-25, -27, 0)), False)
sketch9.addGeometry(Part.ArcOfCircle(Part.Circle(App.Vector(-20, -27, 0), App.Vector(0, 0, 1), 5), math.radians(180), math.radians(270)), False)
sketch9.addGeometry(Part.Circle(App.Vector(-15, -22, 0), App.Vector(0, 0, 1), 8), False)
sketch9.addConstraint(Sketcher.Constraint("Tangent", 0, 2, 1, 1))
sketch9.addConstraint(Sketcher.Constraint("Tangent", 1, 2, 2, 1))
sketch9.addConstraint(Sketcher.Constraint("Tangent", 2, 2, 3, 1))
sketch9.addConstraint(Sketcher.Constraint("Tangent", 3, 2, 4, 1))
sketch9.addConstraint(Sketcher.Constraint("Tangent", 4, 2, 5, 1))
sketch9.addConstraint(Sketcher.Constraint("Tangent", 5, 2, 6, 1))
sketch9.addConstraint(Sketcher.Constraint("Tangent", 6, 2, 7, 1))
sketch9.addConstraint(Sketcher.Constraint("Tangent", 7, 2, 0, 1))
sketch9.addConstraint(Sketcher.Constraint("Horizontal", 0))
sketch9.addConstraint(Sketcher.Constraint("Vertical", 2))
sketch9.addConstraint(Sketcher.Constraint("Horizontal", 4))
sketch9.addConstraint(Sketcher.Constraint("Vertical", 6))
sketch9.addConstraint(Sketcher.Constraint("Equal", 1, 3))
sketch9.addConstraint(Sketcher.Constraint("Equal", 3, 5))
sketch9.addConstraint(Sketcher.Constraint("Equal", 5, 7))
sketch9.addConstraint(Sketcher.Constraint("Equal", 4, 2))
sketch9.addConstraint(Sketcher.Constraint("Diameter", 8, 15.0))
sketch9.addConstraint(Sketcher.Constraint("Radius", 1, 5.0))
sketch9.addConstraint(Sketcher.Constraint("DistanceX", 0, 1, 0, 2, 10.0))
sketch9.addConstraint(Sketcher.Constraint("DistanceX", 5, 3, 8, 3, 5.0))
sketch9.addConstraint(Sketcher.Constraint("DistanceY", 8, 3, 5, 3, 5.0))
sketch9.addConstraint(Sketcher.Constraint("DistanceX", 1, 3, -1, 1, 10.231751))
sketch9.addConstraint(Sketcher.Constraint("DistanceY", 1, 3, -1, 1, 26.734078))
pad7 = body5.newObject("PartDesign::Pad", "Pad006")
pad7.Profile = sketch9
pad7.Length = 1

# Sketch on XY plane
sketch10 = body5.newObject("Sketcher::SketchObject", "Sketch009")
sketch10.AttachmentSupport = (doc.getObject("XY_Plane004"), [""])
sketch10.MapMode = "FlatFace"
sketch10.addGeometry(Part.Circle(App.Vector(-15, -22, 0), App.Vector(0, 0, 1), 8), False)
sketch10.addGeometry(Part.Circle(App.Vector(-15, -22, 0), App.Vector(0, 0, 1), 6), False)
sketch10.addConstraint(Sketcher.Constraint("Coincident", 1, 3, 0, 3))
sketch10.addConstraint(Sketcher.Constraint("Diameter", 0, 15.0))
sketch10.addConstraint(Sketcher.Constraint("Diameter", 1, 13.0))
sketch10.addConstraint(Sketcher.Constraint("DistanceX", 0, 3, -1, 1, 15.231751))
sketch10.addConstraint(Sketcher.Constraint("DistanceY", 0, 3, -1, 1, 21.734078))
pad8 = body5.newObject("PartDesign::Pad", "Pad007")
pad8.Profile = sketch10
pad8.Length = 15
body6 = doc.addObject("PartDesign::Body", "Body005")

# Sketch on XY plane
sketch11 = body6.newObject("Sketcher::SketchObject", "Sketch010")
sketch11.AttachmentSupport = (doc.getObject("XY_Plane005"), [""])
sketch11.MapMode = "FlatFace"
sketch11.addGeometry(Part.LineSegment(App.Vector(34, -21, 0), App.Vector(24, -21, 0)), False)
sketch11.addGeometry(Part.ArcOfCircle(Part.Circle(App.Vector(24, -26, 0), App.Vector(0, 0, 1), 5), math.radians(90), math.radians(180)), False)
sketch11.addGeometry(Part.LineSegment(App.Vector(19, -26, 0), App.Vector(19, -36, 0)), False)
sketch11.addGeometry(Part.ArcOfCircle(Part.Circle(App.Vector(24, -36, 0), App.Vector(0, 0, 1), 5), math.radians(180), math.radians(270)), False)
sketch11.addGeometry(Part.LineSegment(App.Vector(24, -41, 0), App.Vector(34, -41, 0)), False)
sketch11.addGeometry(Part.ArcOfCircle(Part.Circle(App.Vector(34, -36, 0), App.Vector(0, 0, 1), 5), math.radians(-90), math.radians(0)), False)
sketch11.addGeometry(Part.LineSegment(App.Vector(39, -36, 0), App.Vector(39, -26, 0)), False)
sketch11.addGeometry(Part.ArcOfCircle(Part.Circle(App.Vector(34, -26, 0), App.Vector(0, 0, 1), 5), math.radians(0), math.radians(90)), False)
sketch11.addConstraint(Sketcher.Constraint("Tangent", 0, 2, 1, 1))
sketch11.addConstraint(Sketcher.Constraint("Tangent", 1, 2, 2, 1))
sketch11.addConstraint(Sketcher.Constraint("Tangent", 2, 2, 3, 1))
sketch11.addConstraint(Sketcher.Constraint("Tangent", 3, 2, 4, 1))
sketch11.addConstraint(Sketcher.Constraint("Tangent", 4, 2, 5, 1))
sketch11.addConstraint(Sketcher.Constraint("Tangent", 5, 2, 6, 1))
sketch11.addConstraint(Sketcher.Constraint("Tangent", 6, 2, 7, 1))
sketch11.addConstraint(Sketcher.Constraint("Tangent", 7, 2, 0, 1))
sketch11.addConstraint(Sketcher.Constraint("Horizontal", 0))
sketch11.addConstraint(Sketcher.Constraint("Vertical", 2))
sketch11.addConstraint(Sketcher.Constraint("Horizontal", 4))
sketch11.addConstraint(Sketcher.Constraint("Vertical", 6))
sketch11.addConstraint(Sketcher.Constraint("Equal", 1, 3))
sketch11.addConstraint(Sketcher.Constraint("Equal", 3, 5))
sketch11.addConstraint(Sketcher.Constraint("Equal", 5, 7))
sketch11.addConstraint(Sketcher.Constraint("Equal", 4, 2))
sketch11.addConstraint(Sketcher.Constraint("Radius", 1, 5.0))
sketch11.addConstraint(Sketcher.Constraint("DistanceX", 0, 2, 0, 1, 10.0))
sketch11.addConstraint(Sketcher.Constraint("DistanceX", -1, 1, 1, 3, 24.323222))
sketch11.addConstraint(Sketcher.Constraint("DistanceY", 1, 3, -1, 1, 26.272877))
pad9 = body6.newObject("PartDesign::Pad", "Pad008")
pad9.Profile = sketch11
pad9.Length = 2

doc.recompute()
